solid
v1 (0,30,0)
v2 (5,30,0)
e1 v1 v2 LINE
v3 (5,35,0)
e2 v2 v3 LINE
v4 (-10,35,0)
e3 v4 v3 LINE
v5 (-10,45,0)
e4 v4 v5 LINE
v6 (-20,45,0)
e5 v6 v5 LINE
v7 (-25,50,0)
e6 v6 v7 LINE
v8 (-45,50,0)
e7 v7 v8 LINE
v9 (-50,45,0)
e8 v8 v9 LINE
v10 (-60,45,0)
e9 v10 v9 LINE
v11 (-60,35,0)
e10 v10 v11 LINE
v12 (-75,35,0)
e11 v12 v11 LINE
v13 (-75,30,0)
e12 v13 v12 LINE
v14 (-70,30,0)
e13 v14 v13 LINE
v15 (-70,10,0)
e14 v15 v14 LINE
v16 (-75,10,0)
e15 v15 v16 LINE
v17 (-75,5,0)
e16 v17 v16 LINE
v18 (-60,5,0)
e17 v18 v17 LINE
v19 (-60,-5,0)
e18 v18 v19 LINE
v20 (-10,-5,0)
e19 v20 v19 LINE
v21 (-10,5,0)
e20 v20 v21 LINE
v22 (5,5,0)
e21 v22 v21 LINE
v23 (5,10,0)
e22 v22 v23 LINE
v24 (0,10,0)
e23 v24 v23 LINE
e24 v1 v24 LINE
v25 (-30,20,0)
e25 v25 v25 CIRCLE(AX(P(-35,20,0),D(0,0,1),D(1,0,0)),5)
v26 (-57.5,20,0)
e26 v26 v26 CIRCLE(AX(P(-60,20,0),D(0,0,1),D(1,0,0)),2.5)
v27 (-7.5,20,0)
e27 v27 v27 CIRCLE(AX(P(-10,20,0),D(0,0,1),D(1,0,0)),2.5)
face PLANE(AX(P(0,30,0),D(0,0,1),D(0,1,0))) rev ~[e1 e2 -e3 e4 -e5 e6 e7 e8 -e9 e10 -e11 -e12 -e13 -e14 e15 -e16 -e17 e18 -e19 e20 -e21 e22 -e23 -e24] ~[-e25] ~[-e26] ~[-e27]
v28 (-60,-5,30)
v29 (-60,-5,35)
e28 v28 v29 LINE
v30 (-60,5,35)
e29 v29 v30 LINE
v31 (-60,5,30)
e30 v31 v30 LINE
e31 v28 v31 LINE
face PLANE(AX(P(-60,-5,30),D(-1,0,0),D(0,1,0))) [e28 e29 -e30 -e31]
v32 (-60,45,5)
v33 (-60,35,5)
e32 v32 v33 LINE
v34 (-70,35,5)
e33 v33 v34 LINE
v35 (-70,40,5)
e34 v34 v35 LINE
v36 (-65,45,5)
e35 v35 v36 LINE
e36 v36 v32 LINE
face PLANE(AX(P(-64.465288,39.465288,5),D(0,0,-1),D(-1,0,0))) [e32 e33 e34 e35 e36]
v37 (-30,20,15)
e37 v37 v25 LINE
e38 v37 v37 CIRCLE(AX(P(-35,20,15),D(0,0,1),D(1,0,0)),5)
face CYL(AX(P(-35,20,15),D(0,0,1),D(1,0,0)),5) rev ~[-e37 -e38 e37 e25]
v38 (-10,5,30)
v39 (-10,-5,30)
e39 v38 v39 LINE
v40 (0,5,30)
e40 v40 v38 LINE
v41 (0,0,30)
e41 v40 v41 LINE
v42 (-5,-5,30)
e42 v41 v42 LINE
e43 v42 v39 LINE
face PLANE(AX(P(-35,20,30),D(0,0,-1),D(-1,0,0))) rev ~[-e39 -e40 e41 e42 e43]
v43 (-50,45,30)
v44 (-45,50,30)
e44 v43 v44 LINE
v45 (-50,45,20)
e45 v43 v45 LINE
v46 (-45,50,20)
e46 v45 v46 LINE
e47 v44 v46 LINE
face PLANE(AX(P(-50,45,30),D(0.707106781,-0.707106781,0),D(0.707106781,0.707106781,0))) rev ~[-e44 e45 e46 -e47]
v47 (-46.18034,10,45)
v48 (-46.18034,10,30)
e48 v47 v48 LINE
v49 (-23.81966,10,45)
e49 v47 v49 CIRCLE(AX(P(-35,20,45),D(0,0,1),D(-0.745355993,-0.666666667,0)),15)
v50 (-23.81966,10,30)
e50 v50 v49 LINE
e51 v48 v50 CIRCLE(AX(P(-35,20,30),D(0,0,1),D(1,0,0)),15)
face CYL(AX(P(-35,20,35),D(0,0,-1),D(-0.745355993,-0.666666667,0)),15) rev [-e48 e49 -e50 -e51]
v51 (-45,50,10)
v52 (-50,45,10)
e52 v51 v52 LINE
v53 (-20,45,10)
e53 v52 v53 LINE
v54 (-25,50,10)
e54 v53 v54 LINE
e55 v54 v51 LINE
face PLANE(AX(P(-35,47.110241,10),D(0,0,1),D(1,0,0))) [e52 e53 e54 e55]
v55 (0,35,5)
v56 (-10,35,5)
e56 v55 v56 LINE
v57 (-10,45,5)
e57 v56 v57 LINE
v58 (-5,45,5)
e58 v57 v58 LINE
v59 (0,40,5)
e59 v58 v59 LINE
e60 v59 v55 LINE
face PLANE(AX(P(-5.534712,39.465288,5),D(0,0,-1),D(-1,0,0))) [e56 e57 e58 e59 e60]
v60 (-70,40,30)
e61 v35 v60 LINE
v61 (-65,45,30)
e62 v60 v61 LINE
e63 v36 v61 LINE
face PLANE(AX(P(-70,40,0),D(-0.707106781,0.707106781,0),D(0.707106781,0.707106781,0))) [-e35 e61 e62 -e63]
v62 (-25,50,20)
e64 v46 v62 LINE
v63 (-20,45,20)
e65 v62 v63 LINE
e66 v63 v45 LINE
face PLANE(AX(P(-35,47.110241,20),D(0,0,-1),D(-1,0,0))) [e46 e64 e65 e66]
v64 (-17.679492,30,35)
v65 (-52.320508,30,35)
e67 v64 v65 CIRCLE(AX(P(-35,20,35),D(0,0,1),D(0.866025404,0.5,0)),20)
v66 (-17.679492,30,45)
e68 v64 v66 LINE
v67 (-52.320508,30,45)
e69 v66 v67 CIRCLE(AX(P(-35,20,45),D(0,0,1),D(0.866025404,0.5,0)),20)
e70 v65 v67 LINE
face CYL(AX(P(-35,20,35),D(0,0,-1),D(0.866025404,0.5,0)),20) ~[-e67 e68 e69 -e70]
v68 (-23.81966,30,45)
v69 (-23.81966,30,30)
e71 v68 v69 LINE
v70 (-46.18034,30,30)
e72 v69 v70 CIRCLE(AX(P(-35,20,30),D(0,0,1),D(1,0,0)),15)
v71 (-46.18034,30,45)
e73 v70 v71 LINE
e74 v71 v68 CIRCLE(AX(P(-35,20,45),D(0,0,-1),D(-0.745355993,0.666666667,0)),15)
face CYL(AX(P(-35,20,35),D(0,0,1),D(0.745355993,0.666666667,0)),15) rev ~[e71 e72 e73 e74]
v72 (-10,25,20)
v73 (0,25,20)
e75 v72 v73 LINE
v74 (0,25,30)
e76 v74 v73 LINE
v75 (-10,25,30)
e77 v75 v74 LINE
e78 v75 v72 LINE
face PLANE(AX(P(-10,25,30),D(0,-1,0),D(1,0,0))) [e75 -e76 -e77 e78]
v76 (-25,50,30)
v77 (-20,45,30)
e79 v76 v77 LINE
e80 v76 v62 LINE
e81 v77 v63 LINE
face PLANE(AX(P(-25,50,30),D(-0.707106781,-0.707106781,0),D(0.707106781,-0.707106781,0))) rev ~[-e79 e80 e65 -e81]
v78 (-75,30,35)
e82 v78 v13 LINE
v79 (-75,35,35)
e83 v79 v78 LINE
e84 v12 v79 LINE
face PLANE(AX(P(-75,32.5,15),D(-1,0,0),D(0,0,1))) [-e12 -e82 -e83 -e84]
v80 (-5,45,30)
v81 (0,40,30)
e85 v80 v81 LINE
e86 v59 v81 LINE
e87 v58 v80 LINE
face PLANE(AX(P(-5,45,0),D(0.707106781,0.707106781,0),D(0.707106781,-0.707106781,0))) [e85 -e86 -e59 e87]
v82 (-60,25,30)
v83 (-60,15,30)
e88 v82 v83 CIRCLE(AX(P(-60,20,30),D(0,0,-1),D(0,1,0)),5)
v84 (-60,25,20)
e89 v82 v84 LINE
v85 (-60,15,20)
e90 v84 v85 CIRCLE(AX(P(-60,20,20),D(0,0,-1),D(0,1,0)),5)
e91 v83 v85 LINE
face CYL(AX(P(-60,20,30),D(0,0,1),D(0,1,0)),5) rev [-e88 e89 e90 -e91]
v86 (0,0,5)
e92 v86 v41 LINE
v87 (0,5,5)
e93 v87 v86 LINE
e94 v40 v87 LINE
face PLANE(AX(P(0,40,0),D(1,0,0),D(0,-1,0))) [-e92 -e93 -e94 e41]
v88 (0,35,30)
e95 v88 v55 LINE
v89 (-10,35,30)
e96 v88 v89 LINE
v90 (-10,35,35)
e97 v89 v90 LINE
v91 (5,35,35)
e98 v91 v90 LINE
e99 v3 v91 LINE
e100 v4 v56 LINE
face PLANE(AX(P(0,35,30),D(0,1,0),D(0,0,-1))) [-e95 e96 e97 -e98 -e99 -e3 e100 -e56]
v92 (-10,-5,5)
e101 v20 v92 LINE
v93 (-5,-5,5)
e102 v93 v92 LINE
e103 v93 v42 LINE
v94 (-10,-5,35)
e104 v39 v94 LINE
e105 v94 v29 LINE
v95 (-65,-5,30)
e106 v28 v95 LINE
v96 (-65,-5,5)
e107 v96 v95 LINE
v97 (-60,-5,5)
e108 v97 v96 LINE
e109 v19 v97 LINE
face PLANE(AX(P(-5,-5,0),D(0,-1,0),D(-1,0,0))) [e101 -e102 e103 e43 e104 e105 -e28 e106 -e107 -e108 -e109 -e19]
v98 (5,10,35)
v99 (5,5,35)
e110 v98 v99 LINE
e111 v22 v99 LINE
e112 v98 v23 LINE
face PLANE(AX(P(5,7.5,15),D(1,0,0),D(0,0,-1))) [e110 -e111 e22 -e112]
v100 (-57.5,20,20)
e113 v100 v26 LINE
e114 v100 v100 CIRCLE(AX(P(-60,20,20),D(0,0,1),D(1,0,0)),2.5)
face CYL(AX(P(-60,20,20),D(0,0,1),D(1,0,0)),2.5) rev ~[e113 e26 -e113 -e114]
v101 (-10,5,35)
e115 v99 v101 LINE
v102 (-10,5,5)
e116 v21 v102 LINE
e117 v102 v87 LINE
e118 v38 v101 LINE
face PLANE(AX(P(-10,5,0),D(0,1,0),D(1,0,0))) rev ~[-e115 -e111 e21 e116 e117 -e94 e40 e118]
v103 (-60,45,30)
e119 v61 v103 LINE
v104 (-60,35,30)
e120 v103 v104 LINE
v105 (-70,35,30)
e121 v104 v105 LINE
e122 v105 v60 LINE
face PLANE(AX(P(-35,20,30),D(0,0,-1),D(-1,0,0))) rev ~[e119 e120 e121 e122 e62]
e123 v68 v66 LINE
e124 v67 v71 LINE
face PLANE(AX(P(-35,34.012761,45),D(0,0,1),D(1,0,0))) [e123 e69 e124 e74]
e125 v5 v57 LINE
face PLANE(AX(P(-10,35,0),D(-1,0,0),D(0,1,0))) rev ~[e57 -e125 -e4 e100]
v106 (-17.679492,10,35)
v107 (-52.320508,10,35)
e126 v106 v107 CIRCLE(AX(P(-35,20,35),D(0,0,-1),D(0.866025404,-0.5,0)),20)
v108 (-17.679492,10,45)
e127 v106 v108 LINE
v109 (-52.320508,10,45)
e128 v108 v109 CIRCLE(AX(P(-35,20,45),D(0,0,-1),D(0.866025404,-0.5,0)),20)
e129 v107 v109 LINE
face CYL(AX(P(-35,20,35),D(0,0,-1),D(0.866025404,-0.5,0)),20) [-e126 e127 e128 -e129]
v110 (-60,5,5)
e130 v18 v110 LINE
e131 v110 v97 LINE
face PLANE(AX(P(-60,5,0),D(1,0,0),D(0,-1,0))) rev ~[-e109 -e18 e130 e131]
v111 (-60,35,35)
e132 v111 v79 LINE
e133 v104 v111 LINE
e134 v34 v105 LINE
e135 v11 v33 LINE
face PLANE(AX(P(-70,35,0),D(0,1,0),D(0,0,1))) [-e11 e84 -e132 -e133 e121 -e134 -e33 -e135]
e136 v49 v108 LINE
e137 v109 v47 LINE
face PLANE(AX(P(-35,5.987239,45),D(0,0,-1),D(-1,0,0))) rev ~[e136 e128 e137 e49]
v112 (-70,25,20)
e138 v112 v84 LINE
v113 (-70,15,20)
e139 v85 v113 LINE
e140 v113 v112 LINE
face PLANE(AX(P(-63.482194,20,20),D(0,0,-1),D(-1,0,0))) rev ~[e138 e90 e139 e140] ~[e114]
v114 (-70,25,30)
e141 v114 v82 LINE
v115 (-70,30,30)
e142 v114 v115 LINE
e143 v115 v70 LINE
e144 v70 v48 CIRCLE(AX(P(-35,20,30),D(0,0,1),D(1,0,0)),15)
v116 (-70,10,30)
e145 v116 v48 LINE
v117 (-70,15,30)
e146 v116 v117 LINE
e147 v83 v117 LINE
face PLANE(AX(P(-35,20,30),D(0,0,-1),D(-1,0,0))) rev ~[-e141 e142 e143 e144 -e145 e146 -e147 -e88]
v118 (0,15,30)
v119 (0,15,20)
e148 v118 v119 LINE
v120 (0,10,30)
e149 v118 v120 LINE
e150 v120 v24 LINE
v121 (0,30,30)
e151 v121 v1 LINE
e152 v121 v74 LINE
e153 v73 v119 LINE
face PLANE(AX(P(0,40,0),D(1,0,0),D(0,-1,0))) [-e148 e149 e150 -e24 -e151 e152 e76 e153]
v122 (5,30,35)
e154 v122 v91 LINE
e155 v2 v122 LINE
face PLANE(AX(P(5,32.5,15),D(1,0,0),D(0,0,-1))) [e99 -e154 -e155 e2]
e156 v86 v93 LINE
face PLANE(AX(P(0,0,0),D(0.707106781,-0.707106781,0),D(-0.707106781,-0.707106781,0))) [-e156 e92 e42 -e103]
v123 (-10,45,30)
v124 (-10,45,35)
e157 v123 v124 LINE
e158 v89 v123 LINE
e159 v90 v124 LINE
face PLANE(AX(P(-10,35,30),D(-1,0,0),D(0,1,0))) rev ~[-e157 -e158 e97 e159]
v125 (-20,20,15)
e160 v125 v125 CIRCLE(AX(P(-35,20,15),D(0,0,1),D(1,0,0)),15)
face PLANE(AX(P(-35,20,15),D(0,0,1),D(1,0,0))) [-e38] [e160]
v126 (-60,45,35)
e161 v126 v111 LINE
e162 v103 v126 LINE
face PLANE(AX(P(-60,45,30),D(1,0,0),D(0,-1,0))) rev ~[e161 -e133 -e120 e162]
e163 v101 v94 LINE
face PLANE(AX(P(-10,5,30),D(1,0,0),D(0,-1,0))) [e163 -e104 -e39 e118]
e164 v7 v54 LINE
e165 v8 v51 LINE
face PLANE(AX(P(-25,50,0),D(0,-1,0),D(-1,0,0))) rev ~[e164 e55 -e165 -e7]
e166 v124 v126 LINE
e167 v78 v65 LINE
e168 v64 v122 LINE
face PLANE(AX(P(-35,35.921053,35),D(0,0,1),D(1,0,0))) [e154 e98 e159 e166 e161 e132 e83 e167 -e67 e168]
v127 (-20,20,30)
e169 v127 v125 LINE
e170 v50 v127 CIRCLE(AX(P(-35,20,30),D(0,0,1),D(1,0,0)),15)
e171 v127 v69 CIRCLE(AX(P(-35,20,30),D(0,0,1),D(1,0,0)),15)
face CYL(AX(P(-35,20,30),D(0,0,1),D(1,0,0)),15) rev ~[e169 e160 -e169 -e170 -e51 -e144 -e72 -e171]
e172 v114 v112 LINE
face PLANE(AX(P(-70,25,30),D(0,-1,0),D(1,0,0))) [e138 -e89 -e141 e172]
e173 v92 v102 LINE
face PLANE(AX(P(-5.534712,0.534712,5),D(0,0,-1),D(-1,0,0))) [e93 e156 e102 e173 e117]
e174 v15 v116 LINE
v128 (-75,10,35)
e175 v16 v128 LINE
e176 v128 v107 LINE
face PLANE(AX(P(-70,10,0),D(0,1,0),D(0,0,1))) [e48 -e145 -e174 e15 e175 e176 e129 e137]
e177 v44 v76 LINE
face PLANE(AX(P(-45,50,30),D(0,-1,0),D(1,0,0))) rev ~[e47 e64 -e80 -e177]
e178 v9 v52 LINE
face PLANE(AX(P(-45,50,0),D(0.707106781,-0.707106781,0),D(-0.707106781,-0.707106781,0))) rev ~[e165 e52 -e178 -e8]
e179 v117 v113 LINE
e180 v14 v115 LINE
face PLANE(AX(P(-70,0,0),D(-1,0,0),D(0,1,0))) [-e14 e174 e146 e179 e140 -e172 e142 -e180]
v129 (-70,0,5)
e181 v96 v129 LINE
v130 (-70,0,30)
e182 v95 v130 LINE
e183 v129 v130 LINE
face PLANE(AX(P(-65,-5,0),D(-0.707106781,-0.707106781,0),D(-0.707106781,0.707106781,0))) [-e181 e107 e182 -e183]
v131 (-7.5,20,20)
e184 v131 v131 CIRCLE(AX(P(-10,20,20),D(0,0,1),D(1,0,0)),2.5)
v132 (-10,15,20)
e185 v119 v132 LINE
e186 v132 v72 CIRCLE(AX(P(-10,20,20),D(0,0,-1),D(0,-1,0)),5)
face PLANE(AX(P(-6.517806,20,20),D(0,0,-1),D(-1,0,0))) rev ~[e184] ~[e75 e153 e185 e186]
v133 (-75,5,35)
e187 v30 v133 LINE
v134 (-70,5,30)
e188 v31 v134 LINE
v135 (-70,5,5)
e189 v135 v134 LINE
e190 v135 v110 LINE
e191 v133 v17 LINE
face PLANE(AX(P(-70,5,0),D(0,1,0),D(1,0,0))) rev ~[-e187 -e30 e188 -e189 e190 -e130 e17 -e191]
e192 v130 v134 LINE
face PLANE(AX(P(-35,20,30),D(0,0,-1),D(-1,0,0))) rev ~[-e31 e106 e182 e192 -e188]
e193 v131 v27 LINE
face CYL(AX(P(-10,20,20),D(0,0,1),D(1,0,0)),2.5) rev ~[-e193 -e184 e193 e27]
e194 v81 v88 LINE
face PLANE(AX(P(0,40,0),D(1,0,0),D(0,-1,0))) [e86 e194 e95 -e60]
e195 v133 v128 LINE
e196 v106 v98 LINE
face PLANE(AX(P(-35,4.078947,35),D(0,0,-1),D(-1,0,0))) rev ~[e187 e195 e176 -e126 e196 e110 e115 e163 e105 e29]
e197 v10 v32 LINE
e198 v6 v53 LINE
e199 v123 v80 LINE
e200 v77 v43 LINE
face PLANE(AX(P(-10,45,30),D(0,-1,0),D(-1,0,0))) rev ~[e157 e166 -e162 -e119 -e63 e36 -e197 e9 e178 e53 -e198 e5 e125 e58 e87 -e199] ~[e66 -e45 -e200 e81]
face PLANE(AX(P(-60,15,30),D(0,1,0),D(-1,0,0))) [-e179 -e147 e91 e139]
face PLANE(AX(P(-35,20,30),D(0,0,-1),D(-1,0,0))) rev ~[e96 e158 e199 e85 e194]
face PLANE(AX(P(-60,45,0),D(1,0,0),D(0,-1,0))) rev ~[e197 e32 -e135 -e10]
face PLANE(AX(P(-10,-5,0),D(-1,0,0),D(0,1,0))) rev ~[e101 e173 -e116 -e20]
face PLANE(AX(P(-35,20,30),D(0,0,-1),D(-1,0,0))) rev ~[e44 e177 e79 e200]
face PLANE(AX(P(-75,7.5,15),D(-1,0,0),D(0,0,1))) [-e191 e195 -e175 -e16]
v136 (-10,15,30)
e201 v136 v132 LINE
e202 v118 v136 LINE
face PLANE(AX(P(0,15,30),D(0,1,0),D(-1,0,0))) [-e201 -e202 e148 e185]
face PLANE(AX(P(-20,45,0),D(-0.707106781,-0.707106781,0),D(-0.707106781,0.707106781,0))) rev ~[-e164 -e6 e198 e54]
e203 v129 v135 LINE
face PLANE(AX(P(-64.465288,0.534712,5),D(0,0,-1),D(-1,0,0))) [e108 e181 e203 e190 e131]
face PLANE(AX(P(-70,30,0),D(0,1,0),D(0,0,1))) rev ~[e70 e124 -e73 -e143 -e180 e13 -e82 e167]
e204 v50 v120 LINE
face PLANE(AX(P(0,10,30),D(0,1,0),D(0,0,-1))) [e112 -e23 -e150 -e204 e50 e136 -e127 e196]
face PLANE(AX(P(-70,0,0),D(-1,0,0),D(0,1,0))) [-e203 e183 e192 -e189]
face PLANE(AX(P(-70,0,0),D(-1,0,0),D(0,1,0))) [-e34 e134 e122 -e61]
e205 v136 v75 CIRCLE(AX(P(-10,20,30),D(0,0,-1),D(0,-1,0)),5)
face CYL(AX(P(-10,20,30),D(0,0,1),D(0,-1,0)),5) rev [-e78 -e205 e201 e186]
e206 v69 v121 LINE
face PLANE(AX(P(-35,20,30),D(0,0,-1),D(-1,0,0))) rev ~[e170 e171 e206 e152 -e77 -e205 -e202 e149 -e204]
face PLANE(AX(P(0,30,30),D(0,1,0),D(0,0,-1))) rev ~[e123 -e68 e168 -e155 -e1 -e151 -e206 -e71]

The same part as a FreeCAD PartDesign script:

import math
import FreeCAD as App
import Part
import Sketcher
from FreeCAD import Vector

doc = App.newDocument("Part")
body = doc.addObject("PartDesign::Body", "Body")

# Sketch on XY plane
sketch1 = body.newObject("Sketcher::SketchObject", "Sketch")
sketch1.AttachmentSupport = (doc.getObject("XY_Plane"), [""])
sketch1.MapMode = "FlatFace"
sketch1.addGeometry(Part.LineSegment(Vector(-65, 45, 0), Vector(-70, 40, 0)), False)
sketch1.addGeometry(Part.LineSegment(Vector(-70, 40, 0), Vector(-70, 0, 0)), False)
sketch1.addGeometry(Part.LineSegment(Vector(-70, 0, 0), Vector(-65, -5, 0)), False)
sketch1.addGeometry(Part.LineSegment(Vector(-65, -5, 0), Vector(-5, -5, 0)), False)
sketch1.addGeometry(Part.LineSegment(Vector(-5, -5, 0), Vector(0, 0, 0)), False)
sketch1.addGeometry(Part.LineSegment(Vector(0, 0, 0), Vector(0, 40, 0)), False)
sketch1.addGeometry(Part.LineSegment(Vector(0, 40, 0), Vector(-5, 45, 0)), False)
sketch1.addGeometry(Part.LineSegment(Vector(-5, 45, 0), Vector(-65, 45, 0)), False)
sketch1.addConstraint(Sketcher.Constraint("Coincident", 0, 2, 1, 1))
sketch1.addConstraint(Sketcher.Constraint("Coincident", 1, 2, 2, 1))
sketch1.addConstraint(Sketcher.Constraint("Coincident", 2, 2, 3, 1))
sketch1.addConstraint(Sketcher.Constraint("Coincident", 3, 2, 4, 1))
sketch1.addConstraint(Sketcher.Constraint("Coincident", 4, 2, 5, 1))
sketch1.addConstraint(Sketcher.Constraint("Coincident", 5, 2, 6, 1))
sketch1.addConstraint(Sketcher.Constraint("Coincident", 6, 2, 7, 1))
sketch1.addConstraint(Sketcher.Constraint("Coincident", 7, 2, 0, 1))
sketch1.addConstraint(Sketcher.Constraint("Vertical", 1))
sketch1.addConstraint(Sketcher.Constraint("Horizontal", 3))
sketch1.addConstraint(Sketcher.Constraint("Vertical", 5))
sketch1.addConstraint(Sketcher.Constraint("Horizontal", 7))
sketch1.addConstraint(Sketcher.Constraint("Coincident", 4, 2, -1, 1))
sketch1.addConstraint(Sketcher.Constraint("PointOnObject", 1, 2, -1))
sketch1.addConstraint(Sketcher.Constraint("Perpendicular", 0, 2))
sketch1.addConstraint(Sketcher.Constraint("Perpendicular", 2, 4))
sketch1.addConstraint(Sketcher.Constraint("Perpendicular", 4, 6))
sketch1.addConstraint(Sketcher.Constraint("Horizontal", 0, 2, 5, 2))
sketch1.addConstraint(Sketcher.Constraint("Vertical", 3, 2, 6, 2))
sketch1.addConstraint(Sketcher.Constraint("Vertical", 2, 2, 7, 2))
sketch1.addConstraint(Sketcher.Constraint("DistanceX", 3, 1, 3, 2, 60.0))
sketch1.addConstraint(Sketcher.Constraint("DistanceY", 1, 2, 1, 1, 40.0))
sketch1.addConstraint(Sketcher.Constraint("DistanceX", 0, 2, -1, 1, 70.0))
pad1 = body.newObject("PartDesign::Pad", "Pad")
pad1.Profile = sketch1
pad1.Length = 30

# Sketch on XY plane
sketch2 = body.newObject("Sketcher::SketchObject", "Sketch001")
sketch2.AttachmentSupport = (doc.getObject("XY_Plane"), [""])
sketch2.MapMode = "FlatFace"
sketch2.AttachmentOffset = App.Placement(Vector(0, 0, 30), App.Rotation())
sketch2.addGeometry(Part.LineSegment(Vector(-45, 50, 0), Vector(-50, 45, 0)), False)
sketch2.addGeometry(Part.LineSegment(Vector(-50, 45, 0), Vector(-20, 45, 0)), False)
sketch2.addGeometry(Part.LineSegment(Vector(-20, 45, 0), Vector(-25, 50, 0)), False)
sketch2.addGeometry(Part.LineSegment(Vector(-25, 50, 0), Vector(-45, 50, 0)), False)
sketch2.addConstraint(Sketcher.Constraint("Coincident", 0, 2, 1, 1))
sketch2.addConstraint(Sketcher.Constraint("Coincident", 1, 2, 2, 1))
sketch2.addConstraint(Sketcher.Constraint("Coincident", 2, 2, 3, 1))
sketch2.addConstraint(Sketcher.Constraint("Coincident", 3, 2, 0, 1))
sketch2.addConstraint(Sketcher.Constraint("Horizontal", 1))
sketch2.addConstraint(Sketcher.Constraint("Horizontal", 3))
sketch2.addConstraint(Sketcher.Constraint("Perpendicular", 0, 2))
sketch2.addConstraint(Sketcher.Constraint("Equal", 0, 2))
sketch2.addConstraint(Sketcher.Constraint("DistanceX", 1, 1, 1, 2, 30.0))
sketch2.addConstraint(Sketcher.Constraint("DistanceX", 3, 2, 3, 1, 20.0))
sketch2.addConstraint(Sketcher.Constraint("DistanceX", 0, 2, -1, 1, 50.0))
sketch2.addConstraint(Sketcher.Constraint("DistanceY", -1, 1, 0, 2, 45.0))
pad2 = body.newObject("PartDesign::Pad", "Pad001")
pad2.Profile = sketch2
pad2.Length = 10
pad2.Reversed = True

# Sketch on XY plane
sketch3 = body.newObject("Sketcher::SketchObject", "Sketch002")
sketch3.AttachmentSupport = (doc.getObject("XY_Plane"), [""])
sketch3.MapMode = "FlatFace"
sketch3.addGeometry(Part.LineSegment(Vector(-25, 50, 0), Vector(-20, 45, 0)), False)
sketch3.addGeometry(Part.LineSegment(Vector(-20, 45, 0), Vector(-50, 45, 0)), False)
sketch3.addGeometry(Part.LineSegment(Vector(-50, 45, 0), Vector(-45, 50, 0)), False)
sketch3.addGeometry(Part.LineSegment(Vector(-45, 50, 0), Vector(-25, 50, 0)), False)
sketch3.addConstraint(Sketcher.Constraint("Coincident", 0, 2, 1, 1))
sketch3.addConstraint(Sketcher.Constraint("Coincident", 1, 2, 2, 1))
sketch3.addConstraint(Sketcher.Constraint("Coincident", 2, 2, 3, 1))
sketch3.addConstraint(Sketcher.Constraint("Coincident", 3, 2, 0, 1))
sketch3.addConstraint(Sketcher.Constraint("Horizontal", 1))
sketch3.addConstraint(Sketcher.Constraint("Horizontal", 3))
sketch3.addConstraint(Sketcher.Constraint("Perpendicular", 0, 2))
sketch3.addConstraint(Sketcher.Constraint("Equal", 0, 2))
sketch3.addConstraint(Sketcher.Constraint("DistanceX", 1, 2, 1, 1, 30.0))
sketch3.addConstraint(Sketcher.Constraint("DistanceX", 3, 1, 3, 2, 20.0))
sketch3.addConstraint(Sketcher.Constraint("DistanceX", 0, 2, -1, 1, 20.0))
sketch3.addConstraint(Sketcher.Constraint("DistanceY", -1, 1, 0, 2, 45.0))
pad3 = body.newObject("PartDesign::Pad", "Pad002")
pad3.Profile = sketch3
pad3.Length = 10

# Sketch on XY plane
sketch4 = body.newObject("Sketcher::SketchObject", "Sketch003")
sketch4.AttachmentSupport = (doc.getObject("XY_Plane"), [""])
sketch4.MapMode = "FlatFace"
sketch4.AttachmentOffset = App.Placement(Vector(0, 0, 30), App.Rotation())
sketch4.addGeometry(Part.LineSegment(Vector(-75, 30, 0), Vector(5, 30, 0)), False)
sketch4.addGeometry(Part.LineSegment(Vector(5, 30, 0), Vector(5, 35, 0)), False)
sketch4.addGeometry(Part.LineSegment(Vector(5, 35, 0), Vector(-10, 35, 0)), False)
sketch4.addGeometry(Part.LineSegment(Vector(-10, 35, 0), Vector(-10, 45, 0)), False)
sketch4.addGeometry(Part.LineSegment(Vector(-10, 45, 0), Vector(-60, 45, 0)), False)
sketch4.addGeometry(Part.LineSegment(Vector(-60, 45, 0), Vector(-60, 35, 0)), False)
sketch4.addGeometry(Part.LineSegment(Vector(-60, 35, 0), Vector(-75, 35, 0)), False)
sketch4.addGeometry(Part.LineSegment(Vector(-75, 35, 0), Vector(-75, 30, 0)), False)
sketch4.addGeometry(Part.LineSegment(Vector(5, 10, 0), Vector(-75, 10, 0)), False)
sketch4.addGeometry(Part.LineSegment(Vector(-75, 10, 0), Vector(-75, 5, 0)), False)
sketch4.addGeometry(Part.LineSegment(Vector(-75, 5, 0), Vector(-60, 5, 0)), False)
sketch4.addGeometry(Part.LineSegment(Vector(-60, 5, 0), Vector(-60, -5, 0)), False)
sketch4.addGeometry(Part.LineSegment(Vector(-60, -5, 0), Vector(-10, -5, 0)), False)
sketch4.addGeometry(Part.LineSegment(Vector(-10, -5, 0), Vector(-10, 5, 0)), False)
sketch4.addGeometry(Part.LineSegment(Vector(-10, 5, 0), Vector(5, 5, 0)), False)
sketch4.addGeometry(Part.LineSegment(Vector(5, 5, 0), Vector(5, 10, 0)), False)
sketch4.addConstraint(Sketcher.Constraint("Coincident", 0, 2, 1, 1))
sketch4.addConstraint(Sketcher.Constraint("Coincident", 1, 2, 2, 1))
sketch4.addConstraint(Sketcher.Constraint("Coincident", 2, 2, 3, 1))
sketch4.addConstraint(Sketcher.Constraint("Coincident", 3, 2, 4, 1))
sketch4.addConstraint(Sketcher.Constraint("Coincident", 4, 2, 5, 1))
sketch4.addConstraint(Sketcher.Constraint("Coincident", 5, 2, 6, 1))
sketch4.addConstraint(Sketcher.Constraint("Coincident", 6, 2, 7, 1))
sketch4.addConstraint(Sketcher.Constraint("Coincident", 7, 2, 0, 1))
sketch4.addConstraint(Sketcher.Constraint("Coincident", 8, 2, 9, 1))
sketch4.addConstraint(Sketcher.Constraint("Coincident", 9, 2, 10, 1))
sketch4.addConstraint(Sketcher.Constraint("Coincident", 10, 2, 11, 1))
sketch4.addConstraint(Sketcher.Constraint("Coincident", 11, 2, 12, 1))
sketch4.addConstraint(Sketcher.Constraint("Coincident", 12, 2, 13, 1))
sketch4.addConstraint(Sketcher.Constraint("Coincident", 13, 2, 14, 1))
sketch4.addConstraint(Sketcher.Constraint("Coincident", 14, 2, 15, 1))
sketch4.addConstraint(Sketcher.Constraint("Coincident", 15, 2, 8, 1))
sketch4.addConstraint(Sketcher.Constraint("Horizontal", 0))
sketch4.addConstraint(Sketcher.Constraint("Vertical", 1))
sketch4.addConstraint(Sketcher.Constraint("Horizontal", 2))
sketch4.addConstraint(Sketcher.Constraint("Vertical", 3))
sketch4.addConstraint(Sketcher.Constraint("Horizontal", 4))
sketch4.addConstraint(Sketcher.Constraint("Vertical", 5))
sketch4.addConstraint(Sketcher.Constraint("Horizontal", 6))
sketch4.addConstraint(Sketcher.Constraint("Vertical", 7))
sketch4.addConstraint(Sketcher.Constraint("Horizontal", 8))
sketch4.addConstraint(Sketcher.Constraint("Vertical", 9))
sketch4.addConstraint(Sketcher.Constraint("Horizontal", 10))
sketch4.addConstraint(Sketcher.Constraint("Vertical", 11))
sketch4.addConstraint(Sketcher.Constraint("Horizontal", 12))
sketch4.addConstraint(Sketcher.Constraint("Vertical", 13))
sketch4.addConstraint(Sketcher.Constraint("Horizontal", 14))
sketch4.addConstraint(Sketcher.Constraint("Vertical", 15))
sketch4.addConstraint(Sketcher.Constraint("Horizontal", 2, 2, 5, 2))
sketch4.addConstraint(Sketcher.Constraint("Horizontal", 10, 2, 13, 2))
sketch4.addConstraint(Sketcher.Constraint("Vertical", 7, 2, 8, 2))
sketch4.addConstraint(Sketcher.Constraint("Vertical", 5, 2, 10, 2))
sketch4.addConstraint(Sketcher.Constraint("Vertical", 3, 2, 12, 2))
sketch4.addConstraint(Sketcher.Constraint("Vertical", 1, 2, 14, 2))
sketch4.addConstraint(Sketcher.Constraint("Equal", 2, 6))
sketch4.addConstraint(Sketcher.Constraint("Equal", 7, 9))
sketch4.addConstraint(Sketcher.Constraint("Equal", 5, 11))
sketch4.addConstraint(Sketcher.Constraint("DistanceX", 0, 1, 0, 2, 80.0))
sketch4.addConstraint(Sketcher.Constraint("DistanceX", 2, 2, 2, 1, 15.0))
sketch4.addConstraint(Sketcher.Constraint("DistanceY", 1, 1, 1, 2, 5.0))
sketch4.addConstraint(Sketcher.Constraint("DistanceY", 3, 1, 3, 2, 10.0))
sketch4.addConstraint(Sketcher.Constraint("DistanceX", -1, 1, 0, 2, 5.0))
sketch4.addConstraint(Sketcher.Constraint("DistanceY", -1, 1, 0, 2, 30.0))
sketch4.addConstraint(Sketcher.Constraint("DistanceY", -1, 1, 8, 2, 10.0))
pad4 = body.newObject("PartDesign::Pad", "Pad003")
pad4.Profile = sketch4
pad4.Length = 5

# Sketch on XY plane
sketch5 = body.newObject("Sketcher::SketchObject", "Sketch004")
sketch5.AttachmentSupport = (doc.getObject("XY_Plane"), [""])
sketch5.MapMode = "FlatFace"
sketch5.AttachmentOffset = App.Placement(Vector(0, 0, 30), App.Rotation())
sketch5.addGeometry(Part.LineSegment(Vector(-60, 25, 0), Vector(-70, 25, 0)), False)
sketch5.addGeometry(Part.LineSegment(Vector(-70, 25, 0), Vector(-70, 15, 0)), False)
sketch5.addGeometry(Part.LineSegment(Vector(-70, 15, 0), Vector(-60, 15, 0)), False)
sketch5.addGeometry(Part.ArcOfCircle(Part.Circle(Vector(-60, 20, 0), Vector(0, 0, 1), 5), math.radians(-90), math.radians(90)), False)
sketch5.addGeometry(Part.LineSegment(Vector(-10, 15, 0), Vector(0, 15, 0)), False)
sketch5.addGeometry(Part.LineSegment(Vector(0, 15, 0), Vector(0, 25, 0)), False)
sketch5.addGeometry(Part.LineSegment(Vector(0, 25, 0), Vector(-10, 25, 0)), False)
sketch5.addGeometry(Part.ArcOfCircle(Part.Circle(Vector(-10, 20, 0), Vector(0, 0, 1), 5), math.radians(90), math.radians(270)), False)
sketch5.addConstraint(Sketcher.Constraint("Coincident", 0, 2, 1, 1))
sketch5.addConstraint(Sketcher.Constraint("Coincident", 1, 2, 2, 1))
sketch5.addConstraint(Sketcher.Constraint("Tangent", 2, 2, 3, 1))
sketch5.addConstraint(Sketcher.Constraint("Tangent", 3, 2, 0, 1))
sketch5.addConstraint(Sketcher.Constraint("Coincident", 4, 2, 5, 1))
sketch5.addConstraint(Sketcher.Constraint("Coincident", 5, 2, 6, 1))
sketch5.addConstraint(Sketcher.Constraint("Tangent", 6, 2, 7, 1))
sketch5.addConstraint(Sketcher.Constraint("Tangent", 7, 2, 4, 1))
sketch5.addConstraint(Sketcher.Constraint("Horizontal", 0))
sketch5.addConstraint(Sketcher.Constraint("Vertical", 1))
sketch5.addConstraint(Sketcher.Constraint("Horizontal", 2))
sketch5.addConstraint(Sketcher.Constraint("Horizontal", 4))
sketch5.addConstraint(Sketcher.Constraint("Vertical", 5))
sketch5.addConstraint(Sketcher.Constraint("Horizontal", 6))
sketch5.addConstraint(Sketcher.Constraint("Equal", 3, 7))
sketch5.addConstraint(Sketcher.Constraint("PointOnObject", 4, 2, -2))
sketch5.addConstraint(Sketcher.Constraint("Horizontal", 3, 3, 7, 3))
sketch5.addConstraint(Sketcher.Constraint("Equal", 2, 4))
sketch5.addConstraint(Sketcher.Constraint("Equal", 6, 1))
sketch5.addConstraint(Sketcher.Constraint("Radius", 3, 5.0))
sketch5.addConstraint(Sketcher.Constraint("DistanceX", 3, 3, -1, 1, 60.0))
sketch5.addConstraint(Sketcher.Constraint("DistanceY", -1, 1, 3, 3, 20.0))
pocket1 = body.newObject("PartDesign::Pocket", "Pocket")
pocket1.Profile = sketch5
pocket1.Length = 10

# Sketch on XY plane
sketch6 = body.newObject("Sketcher::SketchObject", "Sketch005")
sketch6.AttachmentSupport = (doc.getObject("XY_Plane"), [""])
sketch6.MapMode = "FlatFace"
sketch6.AttachmentOffset = App.Placement(Vector(0, 0, 20), App.Rotation())
sketch6.addGeometry(Part.Circle(Vector(-60, 20, 0), Vector(0, 0, 1), 2.5), False)
sketch6.addGeometry(Part.Circle(Vector(-10, 20, 0), Vector(0, 0, 1), 2.5), False)
sketch6.addConstraint(Sketcher.Constraint("Equal", 0, 1))
sketch6.addConstraint(Sketcher.Constraint("Horizontal", 0, 3, 1, 3))
sketch6.addConstraint(Sketcher.Constraint("Diameter", 0, 5.0))
sketch6.addConstraint(Sketcher.Constraint("DistanceX", 0, 3, -1, 1, 60.0))
sketch6.addConstraint(Sketcher.Constraint("DistanceY", -1, 1, 0, 3, 20.0))
sketch6.addConstraint(Sketcher.Constraint("DistanceX", 1, 3, -1, 1, 10.0))
pocket2 = body.newObject("PartDesign::Pocket", "Pocket001")
pocket2.Profile = sketch6
pocket2.Length = 190

# Sketch on XY plane
sketch7 = body.newObject("Sketcher::SketchObject", "Sketch006")
sketch7.AttachmentSupport = (doc.getObject("XY_Plane"), [""])
sketch7.MapMode = "FlatFace"
sketch7.AttachmentOffset = App.Placement(Vector(0, 0, 30), App.Rotation())
sketch7.addGeometry(Part.Circle(Vector(-35, 20, 0), Vector(0, 0, 1), 15), False)
sketch7.addConstraint(Sketcher.Constraint("Diameter", 0, 30.0))
sketch7.addConstraint(Sketcher.Constraint("DistanceX", 0, 3, -1, 1, 35.0))
sketch7.addConstraint(Sketcher.Constraint("DistanceY", -1, 1, 0, 3, 20.0))
pocket3 = body.newObject("PartDesign::Pocket", "Pocket002")
pocket3.Profile = sketch7
pocket3.Length = 15

# Sketch on XY plane
sketch8 = body.newObject("Sketcher::SketchObject", "Sketch007")
sketch8.AttachmentSupport = (doc.getObject("XY_Plane"), [""])
sketch8.MapMode = "FlatFace"
sketch8.AttachmentOffset = App.Placement(Vector(0, 0, 35), App.Rotation())
sketch8.addGeometry(Part.LineSegment(Vector(-24, 10, 0), Vector(-46, 10, 0)), False)
sketch8.addGeometry(Part.ArcOfCircle(Part.Circle(Vector(-35, 20, 0), Vector(0, 0, 1), 15), math.radians(-138), math.radians(-42)), False)
sketch8.addGeometry(Part.LineSegment(Vector(-46, 30, 0), Vector(-24, 30, 0)), False)
sketch8.addGeometry(Part.ArcOfCircle(Part.Circle(Vector(-35, 20, 0), Vector(0, 0, 1), 15), math.radians(42), math.radians(138)), False)
sketch8.addConstraint(Sketcher.Constraint("Coincident", 0, 1, 1, 2))
sketch8.addConstraint(Sketcher.Constraint("Coincident", 1, 1, 0, 2))
sketch8.addConstraint(Sketcher.Constraint("Coincident", 2, 1, 3, 2))
sketch8.addConstraint(Sketcher.Constraint("Coincident", 3, 1, 2, 2))
sketch8.addConstraint(Sketcher.Constraint("Horizontal", 0))
sketch8.addConstraint(Sketcher.Constraint("Horizontal", 2))
sketch8.addConstraint(Sketcher.Constraint("Coincident", 3, 3, 1, 3))
sketch8.addConstraint(Sketcher.Constraint("Equal", 1, 3))
sketch8.addConstraint(Sketcher.Constraint("Vertical", 1, 1, 2, 1))
sketch8.addConstraint(Sketcher.Constraint("Radius", 1, 15.0))
sketch8.addConstraint(Sketcher.Constraint("DistanceX", 1, 3, -1, 1, 35.0))
sketch8.addConstraint(Sketcher.Constraint("DistanceY", -1, 1, 1, 3, 20.0))
sketch8.addConstraint(Sketcher.Constraint("DistanceY", -1, 1, 0, 1, 10.0))
pocket4 = body.newObject("PartDesign::Pocket", "Pocket003")
pocket4.Profile = sketch8
pocket4.Length = 5

# Sketch on XY plane
sketch9 = body.newObject("Sketcher::SketchObject", "Sketch008")
sketch9.AttachmentSupport = (doc.getObject("XY_Plane"), [""])
sketch9.MapMode = "FlatFace"
sketch9.AttachmentOffset = App.Placement(Vector(0, 0, 35), App.Rotation())
sketch9.addGeometry(Part.ArcOfCircle(Part.Circle(Vector(-35, 20, 0), Vector(0, 0, 1), 20), math.radians(-150), math.radians(-30)), False)
sketch9.addGeometry(Part.LineSegment(Vector(-18, 10, 0), Vector(-24, 10, 0)), False)
sketch9.addGeometry(Part.ArcOfCircle(Part.Circle(Vector(-35, 20, 0), Vector(0, 0, 1), 15), math.radians(-138), math.radians(-42)), False)
sketch9.addGeometry(Part.LineSegment(Vector(-46, 10, 0), Vector(-52, 10, 0)), False)
sketch9.addGeometry(Part.LineSegment(Vector(-52, 30, 0), Vector(-46, 30, 0)), False)
sketch9.addGeometry(Part.ArcOfCircle(Part.Circle(Vector(-35, 20, 0), Vector(0, 0, 1), 15), math.radians(42), math.radians(138)), False)
sketch9.addGeometry(Part.LineSegment(Vector(-24, 30, 0), Vector(-18, 30, 0)), False)
sketch9.addGeometry(Part.ArcOfCircle(Part.Circle(Vector(-35, 20, 0), Vector(0, 0, 1), 20), math.radians(30), math.radians(150)), False)
sketch9.addConstraint(Sketcher.Constraint("Coincident", 0, 2, 1, 1))
sketch9.addConstraint(Sketcher.Constraint("Coincident", 1, 2, 2, 2))
sketch9.addConstraint(Sketcher.Constraint("Coincident", 2, 1, 3, 1))
sketch9.addConstraint(Sketcher.Constraint("Coincident", 3, 2, 0, 1))
sketch9.addConstraint(Sketcher.Constraint("Coincident", 4, 2, 5, 2))
sketch9.addConstraint(Sketcher.Constraint("Coincident", 5, 1, 6, 1))
sketch9.addConstraint(Sketcher.Constraint("Coincident", 6, 2, 7, 1))
sketch9.addConstraint(Sketcher.Constraint("Coincident", 7, 2, 4, 1))
sketch9.addConstraint(Sketcher.Constraint("Horizontal", 1))
sketch9.addConstraint(Sketcher.Constraint("Horizontal", 3))
sketch9.addConstraint(Sketcher.Constraint("Horizontal", 4))
sketch9.addConstraint(Sketcher.Constraint("Horizontal", 6))
sketch9.addConstraint(Sketcher.Constraint("Coincident", 2, 3, 0, 3))
sketch9.addConstraint(Sketcher.Constraint("Coincident", 5, 3, 0, 3))
sketch9.addConstraint(Sketcher.Constraint("Coincident", 7, 3, 0, 3))
sketch9.addConstraint(Sketcher.Constraint("Equal", 2, 5))
sketch9.addConstraint(Sketcher.Constraint("Equal", 0, 7))
sketch9.addConstraint(Sketcher.Constraint("Horizontal", 1, 2, 2, 1))
sketch9.addConstraint(Sketcher.Constraint("Horizontal", 4, 2, 5, 1))
sketch9.addConstraint(Sketcher.Constraint("Vertical", 2, 1, 4, 2))
sketch9.addConstraint(Sketcher.Constraint("Radius", 0, 20.0))
sketch9.addConstraint(Sketcher.Constraint("Radius", 2, 15.0))
sketch9.addConstraint(Sketcher.Constraint("DistanceX", 0, 3, -1, 1, 35.0))
sketch9.addConstraint(Sketcher.Constraint("DistanceY", -1, 1, 0, 3, 20.0))
sketch9.addConstraint(Sketcher.Constraint("DistanceY", -1, 1, 0, 2, 10.0))
pad5 = body.newObject("PartDesign::Pad", "Pad004")
pad5.Profile = sketch9
pad5.Length = 10

# Sketch on XY plane
sketch10 = body.newObject("Sketcher::SketchObject", "Sketch009")
sketch10.AttachmentSupport = (doc.getObject("XY_Plane"), [""])
sketch10.MapMode = "FlatFace"
sketch10.AttachmentOffset = App.Placement(Vector(0, 0, 15), App.Rotation())
sketch10.addGeometry(Part.Circle(Vector(-35, 20, 0), Vector(0, 0, 1), 5), False)
sketch10.addConstraint(Sketcher.Constraint("Diameter", 0, 10.0))
sketch10.addConstraint(Sketcher.Constraint("DistanceX", 0, 3, -1, 1, 35.0))
sketch10.addConstraint(Sketcher.Constraint("DistanceY", -1, 1, 0, 3, 20.0))
pocket5 = body.newObject("PartDesign::Pocket", "Pocket004")
pocket5.Profile = sketch10
pocket5.Length = 15

# Sketch on XY plane
sketch11 = body.newObject("Sketcher::SketchObject", "Sketch010")
sketch11.AttachmentSupport = (doc.getObject("XY_Plane"), [""])
sketch11.MapMode = "FlatFace"
sketch11.addGeometry(Part.LineSegment(Vector(-5, -5, 0), Vector(-10, -5, 0)), False)
sketch11.addGeometry(Part.LineSegment(Vector(-10, -5, 0), Vector(-10, 5, 0)), False)
sketch11.addGeometry(Part.LineSegment(Vector(-10, 5, 0), Vector(0, 5, 0)), False)
sketch11.addGeometry(Part.LineSegment(Vector(0, 5, 0), Vector(0, 0, 0)), False)
sketch11.addGeometry(Part.LineSegment(Vector(0, 0, 0), Vector(-5, -5, 0)), False)
sketch11.addGeometry(Part.LineSegment(Vector(0, 40, 0), Vector(0, 35, 0)), False)
sketch11.addGeometry(Part.LineSegment(Vector(0, 35, 0), Vector(-10, 35, 0)), False)
sketch11.addGeometry(Part.LineSegment(Vector(-10, 35, 0), Vector(-10, 45, 0)), False)
sketch11.addGeometry(Part.LineSegment(Vector(-10, 45, 0), Vector(-5, 45, 0)), False)
sketch11.addGeometry(Part.LineSegment(Vector(-5, 45, 0), Vector(0, 40, 0)), False)
sketch11.addGeometry(Part.LineSegment(Vector(-60, 45, 0), Vector(-60, 35, 0)), False)
sketch11.addGeometry(Part.LineSegment(Vector(-60, 35, 0), Vector(-70, 35, 0)), False)
sketch11.addGeometry(Part.LineSegment(Vector(-70, 35, 0), Vector(-70, 40, 0)), False)
sketch11.addGeometry(Part.LineSegment(Vector(-70, 40, 0), Vector(-65, 45, 0)), False)
sketch11.addGeometry(Part.LineSegment(Vector(-65, 45, 0), Vector(-60, 45, 0)), False)
sketch11.addGeometry(Part.LineSegment(Vector(-70, 0, 0), Vector(-70, 5, 0)), False)
sketch11.addGeometry(Part.LineSegment(Vector(-70, 5, 0), Vector(-60, 5, 0)), False)
sketch11.addGeometry(Part.LineSegment(Vector(-60, 5, 0), Vector(-60, -5, 0)), False)
sketch11.addGeometry(Part.LineSegment(Vector(-60, -5, 0), Vector(-65, -5, 0)), False)
sketch11.addGeometry(Part.LineSegment(Vector(-65, -5, 0), Vector(-70, 0, 0)), False)
sketch11.addConstraint(Sketcher.Constraint("Coincident", 0, 2, 1, 1))
sketch11.addConstraint(Sketcher.Constraint("Coincident", 1, 2, 2, 1))
sketch11.addConstraint(Sketcher.Constraint("Coincident", 2, 2, 3, 1))
sketch11.addConstraint(Sketcher.Constraint("Coincident", 3, 2, 4, 1))
sketch11.addConstraint(Sketcher.Constraint("Coincident", 4, 2, 0, 1))
sketch11.addConstraint(Sketcher.Constraint("Coincident", 5, 2, 6, 1))
sketch11.addConstraint(Sketcher.Constraint("Coincident", 6, 2, 7, 1))
sketch11.addConstraint(Sketcher.Constraint("Coincident", 7, 2, 8, 1))
sketch11.addConstraint(Sketcher.Constraint("Coincident", 8, 2, 9, 1))
sketch11.addConstraint(Sketcher.Constraint("Coincident", 9, 2, 5, 1))
sketch11.addConstraint(Sketcher.Constraint("Coincident", 10, 2, 11, 1))
sketch11.addConstraint(Sketcher.Constraint("Coincident", 11, 2, 12, 1))
sketch11.addConstraint(Sketcher.Constraint("Coincident", 12, 2, 13, 1))
sketch11.addConstraint(Sketcher.Constraint("Coincident", 13, 2, 14, 1))
sketch11.addConstraint(Sketcher.Constraint("Coincident", 14, 2, 10, 1))
sketch11.addConstraint(Sketcher.Constraint("Coincident", 15, 2, 16, 1))
sketch11.addConstraint(Sketcher.Constraint("Coincident", 16, 2, 17, 1))
sketch11.addConstraint(Sketcher.Constraint("Coincident", 17, 2, 18, 1))
sketch11.addConstraint(Sketcher.Constraint("Coincident", 18, 2, 19, 1))
sketch11.addConstraint(Sketcher.Constraint("Coincident", 19, 2, 15, 1))
sketch11.addConstraint(Sketcher.Constraint("Horizontal", 0))
sketch11.addConstraint(Sketcher.Constraint("Vertical", 1))
sketch11.addConstraint(Sketcher.Constraint("Horizontal", 2))
sketch11.addConstraint(Sketcher.Constraint("Vertical", 3))
sketch11.addConstraint(Sketcher.Constraint("Vertical", 5))
sketch11.addConstraint(Sketcher.Constraint("Horizontal", 6))
sketch11.addConstraint(Sketcher.Constraint("Vertical", 7))
sketch11.addConstraint(Sketcher.Constraint("Horizontal", 8))
sketch11.addConstraint(Sketcher.Constraint("Vertical", 10))
sketch11.addConstraint(Sketcher.Constraint("Horizontal", 11))
sketch11.addConstraint(Sketcher.Constraint("Vertical", 12))
sketch11.addConstraint(Sketcher.Constraint("Horizontal", 14))
sketch11.addConstraint(Sketcher.Constraint("Vertical", 15))
sketch11.addConstraint(Sketcher.Constraint("Horizontal", 16))
sketch11.addConstraint(Sketcher.Constraint("Vertical", 17))
sketch11.addConstraint(Sketcher.Constraint("Horizontal", 18))
sketch11.addConstraint(Sketcher.Constraint("Coincident", 3, 2, -1, 1))
sketch11.addConstraint(Sketcher.Constraint("PointOnObject", 5, 2, -2))
sketch11.addConstraint(Sketcher.Constraint("PointOnObject", 19, 2, -1))
sketch11.addConstraint(Sketcher.Constraint("Perpendicular", 4, 9))
sketch11.addConstraint(Sketcher.Constraint("Perpendicular", 9, 13))
sketch11.addConstraint(Sketcher.Constraint("Perpendicular", 13, 19))
sketch11.addConstraint(Sketcher.Constraint("Horizontal", 6, 2, 10, 2))
sketch11.addConstraint(Sketcher.Constraint("Horizontal", 9, 2, 12, 2))
sketch11.addConstraint(Sketcher.Constraint("Horizontal", 8, 2, 13, 2))
sketch11.addConstraint(Sketcher.Constraint("Horizontal", 2, 2, 15, 2))
sketch11.addConstraint(Sketcher.Constraint("Horizontal", 4, 2, 17, 2))
sketch11.addConstraint(Sketcher.Constraint("Vertical", 1, 2, 6, 2))
sketch11.addConstraint(Sketcher.Constraint("Vertical", 4, 2, 8, 2))
sketch11.addConstraint(Sketcher.Constraint("Vertical", 12, 2, 15, 2))
sketch11.addConstraint(Sketcher.Constraint("Vertical", 14, 2, 16, 2))
sketch11.addConstraint(Sketcher.Constraint("Vertical", 13, 2, 18, 2))
sketch11.addConstraint(Sketcher.Constraint("Equal", 6, 11))
sketch11.addConstraint(Sketcher.Constraint("Equal", 16, 1))
sketch11.addConstraint(Sketcher.Constraint("Equal", 3, 5))
sketch11.addConstraint(Sketcher.Constraint("DistanceX", 0, 2, 0, 1, 5.0))
sketch11.addConstraint(Sketcher.Constraint("DistanceX", 2, 1, 2, 2, 10.0))
sketch11.addConstraint(Sketcher.Constraint("DistanceY", -1, 1, 5, 2, 35.0))
sketch11.addConstraint(Sketcher.Constraint("DistanceX", 10, 2, -1, 1, 60.0))
pocket6 = body.newObject("PartDesign::Pocket", "Pocket005")
pocket6.Profile = sketch11
pocket6.Length = 5
pocket6.Reversed = True

# Sketch on YZ plane
sketch12 = body.newObject("Sketcher::SketchObject", "Sketch011")
sketch12.AttachmentSupport = (doc.getObject("YZ_Plane"), [""])
sketch12.MapMode = "FlatFace"
sketch12.AttachmentOffset = App.Placement(Vector(0, 0, -70), App.Rotation())
sketch12.addGeometry(Part.LineSegment(Vector(35, 0, 0), Vector(30, 0, 0)), False)
sketch12.addGeometry(Part.LineSegment(Vector(30, 0, 0), Vector(30, 30, 0)), False)
sketch12.addGeometry(Part.LineSegment(Vector(30, 30, 0), Vector(35, 30, 0)), False)
sketch12.addGeometry(Part.LineSegment(Vector(35, 30, 0), Vector(35, 0, 0)), False)
sketch12.addGeometry(Part.LineSegment(Vector(10, 0, 0), Vector(5, 0, 0)), False)
sketch12.addGeometry(Part.LineSegment(Vector(5, 0, 0), Vector(5, 30, 0)), False)
sketch12.addGeometry(Part.LineSegment(Vector(5, 30, 0), Vector(10, 30, 0)), False)
sketch12.addGeometry(Part.LineSegment(Vector(10, 30, 0), Vector(10, 0, 0)), False)
sketch12.addConstraint(Sketcher.Constraint("Coincident", 0, 2, 1, 1))
sketch12.addConstraint(Sketcher.Constraint("Coincident", 1, 2, 2, 1))
sketch12.addConstraint(Sketcher.Constraint("Coincident", 2, 2, 3, 1))
sketch12.addConstraint(Sketcher.Constraint("Coincident", 3, 2, 0, 1))
sketch12.addConstraint(Sketcher.Constraint("Coincident", 4, 2, 5, 1))
sketch12.addConstraint(Sketcher.Constraint("Coincident", 5, 2, 6, 1))
sketch12.addConstraint(Sketcher.Constraint("Coincident", 6, 2, 7, 1))
sketch12.addConstraint(Sketcher.Constraint("Coincident", 7, 2, 4, 1))
sketch12.addConstraint(Sketcher.Constraint("Horizontal", 0))
sketch12.addConstraint(Sketcher.Constraint("Vertical", 1))
sketch12.addConstraint(Sketcher.Constraint("Horizontal", 2))
sketch12.addConstraint(Sketcher.Constraint("Vertical", 3))
sketch12.addConstraint(Sketcher.Constraint("Horizontal", 4))
sketch12.addConstraint(Sketcher.Constraint("Vertical", 5))
sketch12.addConstraint(Sketcher.Constraint("Horizontal", 6))
sketch12.addConstraint(Sketcher.Constraint("Vertical", 7))
sketch12.addConstraint(Sketcher.Constraint("PointOnObject", 0, 2, -1))
sketch12.addConstraint(Sketcher.Constraint("PointOnObject", 4, 2, -1))
sketch12.addConstraint(Sketcher.Constraint("Horizontal", 2, 2, 5, 2))
sketch12.addConstraint(Sketcher.Constraint("Equal", 2, 4))
sketch12.addConstraint(Sketcher.Constraint("DistanceX", 0, 2, 0, 1, 5.0))
sketch12.addConstraint(Sketcher.Constraint("DistanceY", 1, 1, 1, 2, 30.0))
sketch12.addConstraint(Sketcher.Constraint("DistanceX", -1, 1, 0, 2, 30.0))
sketch12.addConstraint(Sketcher.Constraint("DistanceX", -1, 1, 4, 2, 5.0))
pad6 = body.newObject("PartDesign::Pad", "Pad005")
pad6.Profile = sketch12
pad6.Length = 5
pad6.Reversed = True

# Sketch on YZ plane
sketch13 = body.newObject("Sketcher::SketchObject", "Sketch012")
sketch13.AttachmentSupport = (doc.getObject("YZ_Plane"), [""])
sketch13.MapMode = "FlatFace"
sketch13.addGeometry(Part.LineSegment(Vector(35, 30, 0), Vector(30, 30, 0)), False)
sketch13.addGeometry(Part.LineSegment(Vector(30, 30, 0), Vector(30, 0, 0)), False)
sketch13.addGeometry(Part.LineSegment(Vector(30, 0, 0), Vector(35, 0, 0)), False)
sketch13.addGeometry(Part.LineSegment(Vector(35, 0, 0), Vector(35, 30, 0)), False)
sketch13.addGeometry(Part.LineSegment(Vector(10, 30, 0), Vector(5, 30, 0)), False)
sketch13.addGeometry(Part.LineSegment(Vector(5, 30, 0), Vector(5, 0, 0)), False)
sketch13.addGeometry(Part.LineSegment(Vector(5, 0, 0), Vector(10, 0, 0)), False)
sketch13.addGeometry(Part.LineSegment(Vector(10, 0, 0), Vector(10, 30, 0)), False)
sketch13.addConstraint(Sketcher.Constraint("Coincident", 0, 2, 1, 1))
sketch13.addConstraint(Sketcher.Constraint("Coincident", 1, 2, 2, 1))
sketch13.addConstraint(Sketcher.Constraint("Coincident", 2, 2, 3, 1))
sketch13.addConstraint(Sketcher.Constraint("Coincident", 3, 2, 0, 1))
sketch13.addConstraint(Sketcher.Constraint("Coincident", 4, 2, 5, 1))
sketch13.addConstraint(Sketcher.Constraint("Coincident", 5, 2, 6, 1))
sketch13.addConstraint(Sketcher.Constraint("Coincident", 6, 2, 7, 1))
sketch13.addConstraint(Sketcher.Constraint("Coincident", 7, 2, 4, 1))
sketch13.addConstraint(Sketcher.Constraint("Horizontal", 0))
sketch13.addConstraint(Sketcher.Constraint("Vertical", 1))
sketch13.addConstraint(Sketcher.Constraint("Horizontal", 2))
sketch13.addConstraint(Sketcher.Constraint("Vertical", 3))
sketch13.addConstraint(Sketcher.Constraint("Horizontal", 4))
sketch13.addConstraint(Sketcher.Constraint("Vertical", 5))
sketch13.addConstraint(Sketcher.Constraint("Horizontal", 6))
sketch13.addConstraint(Sketcher.Constraint("Vertical", 7))
sketch13.addConstraint(Sketcher.Constraint("PointOnObject", 1, 2, -1))
sketch13.addConstraint(Sketcher.Constraint("PointOnObject", 5, 2, -1))
sketch13.addConstraint(Sketcher.Constraint("Horizontal", 3, 2, 4, 2))
sketch13.addConstraint(Sketcher.Constraint("Equal", 2, 4))
sketch13.addConstraint(Sketcher.Constraint("DistanceX", 0, 2, 0, 1, 5.0))
sketch13.addConstraint(Sketcher.Constraint("DistanceY", 1, 2, 1, 1, 30.0))
sketch13.addConstraint(Sketcher.Constraint("DistanceX", -1, 1, 0, 2, 30.0))
sketch13.addConstraint(Sketcher.Constraint("DistanceX", -1, 1, 4, 2, 5.0))
pad7 = body.newObject("PartDesign::Pad", "Pad006")
pad7.Profile = sketch13
pad7.Length = 5

doc.recompute()
